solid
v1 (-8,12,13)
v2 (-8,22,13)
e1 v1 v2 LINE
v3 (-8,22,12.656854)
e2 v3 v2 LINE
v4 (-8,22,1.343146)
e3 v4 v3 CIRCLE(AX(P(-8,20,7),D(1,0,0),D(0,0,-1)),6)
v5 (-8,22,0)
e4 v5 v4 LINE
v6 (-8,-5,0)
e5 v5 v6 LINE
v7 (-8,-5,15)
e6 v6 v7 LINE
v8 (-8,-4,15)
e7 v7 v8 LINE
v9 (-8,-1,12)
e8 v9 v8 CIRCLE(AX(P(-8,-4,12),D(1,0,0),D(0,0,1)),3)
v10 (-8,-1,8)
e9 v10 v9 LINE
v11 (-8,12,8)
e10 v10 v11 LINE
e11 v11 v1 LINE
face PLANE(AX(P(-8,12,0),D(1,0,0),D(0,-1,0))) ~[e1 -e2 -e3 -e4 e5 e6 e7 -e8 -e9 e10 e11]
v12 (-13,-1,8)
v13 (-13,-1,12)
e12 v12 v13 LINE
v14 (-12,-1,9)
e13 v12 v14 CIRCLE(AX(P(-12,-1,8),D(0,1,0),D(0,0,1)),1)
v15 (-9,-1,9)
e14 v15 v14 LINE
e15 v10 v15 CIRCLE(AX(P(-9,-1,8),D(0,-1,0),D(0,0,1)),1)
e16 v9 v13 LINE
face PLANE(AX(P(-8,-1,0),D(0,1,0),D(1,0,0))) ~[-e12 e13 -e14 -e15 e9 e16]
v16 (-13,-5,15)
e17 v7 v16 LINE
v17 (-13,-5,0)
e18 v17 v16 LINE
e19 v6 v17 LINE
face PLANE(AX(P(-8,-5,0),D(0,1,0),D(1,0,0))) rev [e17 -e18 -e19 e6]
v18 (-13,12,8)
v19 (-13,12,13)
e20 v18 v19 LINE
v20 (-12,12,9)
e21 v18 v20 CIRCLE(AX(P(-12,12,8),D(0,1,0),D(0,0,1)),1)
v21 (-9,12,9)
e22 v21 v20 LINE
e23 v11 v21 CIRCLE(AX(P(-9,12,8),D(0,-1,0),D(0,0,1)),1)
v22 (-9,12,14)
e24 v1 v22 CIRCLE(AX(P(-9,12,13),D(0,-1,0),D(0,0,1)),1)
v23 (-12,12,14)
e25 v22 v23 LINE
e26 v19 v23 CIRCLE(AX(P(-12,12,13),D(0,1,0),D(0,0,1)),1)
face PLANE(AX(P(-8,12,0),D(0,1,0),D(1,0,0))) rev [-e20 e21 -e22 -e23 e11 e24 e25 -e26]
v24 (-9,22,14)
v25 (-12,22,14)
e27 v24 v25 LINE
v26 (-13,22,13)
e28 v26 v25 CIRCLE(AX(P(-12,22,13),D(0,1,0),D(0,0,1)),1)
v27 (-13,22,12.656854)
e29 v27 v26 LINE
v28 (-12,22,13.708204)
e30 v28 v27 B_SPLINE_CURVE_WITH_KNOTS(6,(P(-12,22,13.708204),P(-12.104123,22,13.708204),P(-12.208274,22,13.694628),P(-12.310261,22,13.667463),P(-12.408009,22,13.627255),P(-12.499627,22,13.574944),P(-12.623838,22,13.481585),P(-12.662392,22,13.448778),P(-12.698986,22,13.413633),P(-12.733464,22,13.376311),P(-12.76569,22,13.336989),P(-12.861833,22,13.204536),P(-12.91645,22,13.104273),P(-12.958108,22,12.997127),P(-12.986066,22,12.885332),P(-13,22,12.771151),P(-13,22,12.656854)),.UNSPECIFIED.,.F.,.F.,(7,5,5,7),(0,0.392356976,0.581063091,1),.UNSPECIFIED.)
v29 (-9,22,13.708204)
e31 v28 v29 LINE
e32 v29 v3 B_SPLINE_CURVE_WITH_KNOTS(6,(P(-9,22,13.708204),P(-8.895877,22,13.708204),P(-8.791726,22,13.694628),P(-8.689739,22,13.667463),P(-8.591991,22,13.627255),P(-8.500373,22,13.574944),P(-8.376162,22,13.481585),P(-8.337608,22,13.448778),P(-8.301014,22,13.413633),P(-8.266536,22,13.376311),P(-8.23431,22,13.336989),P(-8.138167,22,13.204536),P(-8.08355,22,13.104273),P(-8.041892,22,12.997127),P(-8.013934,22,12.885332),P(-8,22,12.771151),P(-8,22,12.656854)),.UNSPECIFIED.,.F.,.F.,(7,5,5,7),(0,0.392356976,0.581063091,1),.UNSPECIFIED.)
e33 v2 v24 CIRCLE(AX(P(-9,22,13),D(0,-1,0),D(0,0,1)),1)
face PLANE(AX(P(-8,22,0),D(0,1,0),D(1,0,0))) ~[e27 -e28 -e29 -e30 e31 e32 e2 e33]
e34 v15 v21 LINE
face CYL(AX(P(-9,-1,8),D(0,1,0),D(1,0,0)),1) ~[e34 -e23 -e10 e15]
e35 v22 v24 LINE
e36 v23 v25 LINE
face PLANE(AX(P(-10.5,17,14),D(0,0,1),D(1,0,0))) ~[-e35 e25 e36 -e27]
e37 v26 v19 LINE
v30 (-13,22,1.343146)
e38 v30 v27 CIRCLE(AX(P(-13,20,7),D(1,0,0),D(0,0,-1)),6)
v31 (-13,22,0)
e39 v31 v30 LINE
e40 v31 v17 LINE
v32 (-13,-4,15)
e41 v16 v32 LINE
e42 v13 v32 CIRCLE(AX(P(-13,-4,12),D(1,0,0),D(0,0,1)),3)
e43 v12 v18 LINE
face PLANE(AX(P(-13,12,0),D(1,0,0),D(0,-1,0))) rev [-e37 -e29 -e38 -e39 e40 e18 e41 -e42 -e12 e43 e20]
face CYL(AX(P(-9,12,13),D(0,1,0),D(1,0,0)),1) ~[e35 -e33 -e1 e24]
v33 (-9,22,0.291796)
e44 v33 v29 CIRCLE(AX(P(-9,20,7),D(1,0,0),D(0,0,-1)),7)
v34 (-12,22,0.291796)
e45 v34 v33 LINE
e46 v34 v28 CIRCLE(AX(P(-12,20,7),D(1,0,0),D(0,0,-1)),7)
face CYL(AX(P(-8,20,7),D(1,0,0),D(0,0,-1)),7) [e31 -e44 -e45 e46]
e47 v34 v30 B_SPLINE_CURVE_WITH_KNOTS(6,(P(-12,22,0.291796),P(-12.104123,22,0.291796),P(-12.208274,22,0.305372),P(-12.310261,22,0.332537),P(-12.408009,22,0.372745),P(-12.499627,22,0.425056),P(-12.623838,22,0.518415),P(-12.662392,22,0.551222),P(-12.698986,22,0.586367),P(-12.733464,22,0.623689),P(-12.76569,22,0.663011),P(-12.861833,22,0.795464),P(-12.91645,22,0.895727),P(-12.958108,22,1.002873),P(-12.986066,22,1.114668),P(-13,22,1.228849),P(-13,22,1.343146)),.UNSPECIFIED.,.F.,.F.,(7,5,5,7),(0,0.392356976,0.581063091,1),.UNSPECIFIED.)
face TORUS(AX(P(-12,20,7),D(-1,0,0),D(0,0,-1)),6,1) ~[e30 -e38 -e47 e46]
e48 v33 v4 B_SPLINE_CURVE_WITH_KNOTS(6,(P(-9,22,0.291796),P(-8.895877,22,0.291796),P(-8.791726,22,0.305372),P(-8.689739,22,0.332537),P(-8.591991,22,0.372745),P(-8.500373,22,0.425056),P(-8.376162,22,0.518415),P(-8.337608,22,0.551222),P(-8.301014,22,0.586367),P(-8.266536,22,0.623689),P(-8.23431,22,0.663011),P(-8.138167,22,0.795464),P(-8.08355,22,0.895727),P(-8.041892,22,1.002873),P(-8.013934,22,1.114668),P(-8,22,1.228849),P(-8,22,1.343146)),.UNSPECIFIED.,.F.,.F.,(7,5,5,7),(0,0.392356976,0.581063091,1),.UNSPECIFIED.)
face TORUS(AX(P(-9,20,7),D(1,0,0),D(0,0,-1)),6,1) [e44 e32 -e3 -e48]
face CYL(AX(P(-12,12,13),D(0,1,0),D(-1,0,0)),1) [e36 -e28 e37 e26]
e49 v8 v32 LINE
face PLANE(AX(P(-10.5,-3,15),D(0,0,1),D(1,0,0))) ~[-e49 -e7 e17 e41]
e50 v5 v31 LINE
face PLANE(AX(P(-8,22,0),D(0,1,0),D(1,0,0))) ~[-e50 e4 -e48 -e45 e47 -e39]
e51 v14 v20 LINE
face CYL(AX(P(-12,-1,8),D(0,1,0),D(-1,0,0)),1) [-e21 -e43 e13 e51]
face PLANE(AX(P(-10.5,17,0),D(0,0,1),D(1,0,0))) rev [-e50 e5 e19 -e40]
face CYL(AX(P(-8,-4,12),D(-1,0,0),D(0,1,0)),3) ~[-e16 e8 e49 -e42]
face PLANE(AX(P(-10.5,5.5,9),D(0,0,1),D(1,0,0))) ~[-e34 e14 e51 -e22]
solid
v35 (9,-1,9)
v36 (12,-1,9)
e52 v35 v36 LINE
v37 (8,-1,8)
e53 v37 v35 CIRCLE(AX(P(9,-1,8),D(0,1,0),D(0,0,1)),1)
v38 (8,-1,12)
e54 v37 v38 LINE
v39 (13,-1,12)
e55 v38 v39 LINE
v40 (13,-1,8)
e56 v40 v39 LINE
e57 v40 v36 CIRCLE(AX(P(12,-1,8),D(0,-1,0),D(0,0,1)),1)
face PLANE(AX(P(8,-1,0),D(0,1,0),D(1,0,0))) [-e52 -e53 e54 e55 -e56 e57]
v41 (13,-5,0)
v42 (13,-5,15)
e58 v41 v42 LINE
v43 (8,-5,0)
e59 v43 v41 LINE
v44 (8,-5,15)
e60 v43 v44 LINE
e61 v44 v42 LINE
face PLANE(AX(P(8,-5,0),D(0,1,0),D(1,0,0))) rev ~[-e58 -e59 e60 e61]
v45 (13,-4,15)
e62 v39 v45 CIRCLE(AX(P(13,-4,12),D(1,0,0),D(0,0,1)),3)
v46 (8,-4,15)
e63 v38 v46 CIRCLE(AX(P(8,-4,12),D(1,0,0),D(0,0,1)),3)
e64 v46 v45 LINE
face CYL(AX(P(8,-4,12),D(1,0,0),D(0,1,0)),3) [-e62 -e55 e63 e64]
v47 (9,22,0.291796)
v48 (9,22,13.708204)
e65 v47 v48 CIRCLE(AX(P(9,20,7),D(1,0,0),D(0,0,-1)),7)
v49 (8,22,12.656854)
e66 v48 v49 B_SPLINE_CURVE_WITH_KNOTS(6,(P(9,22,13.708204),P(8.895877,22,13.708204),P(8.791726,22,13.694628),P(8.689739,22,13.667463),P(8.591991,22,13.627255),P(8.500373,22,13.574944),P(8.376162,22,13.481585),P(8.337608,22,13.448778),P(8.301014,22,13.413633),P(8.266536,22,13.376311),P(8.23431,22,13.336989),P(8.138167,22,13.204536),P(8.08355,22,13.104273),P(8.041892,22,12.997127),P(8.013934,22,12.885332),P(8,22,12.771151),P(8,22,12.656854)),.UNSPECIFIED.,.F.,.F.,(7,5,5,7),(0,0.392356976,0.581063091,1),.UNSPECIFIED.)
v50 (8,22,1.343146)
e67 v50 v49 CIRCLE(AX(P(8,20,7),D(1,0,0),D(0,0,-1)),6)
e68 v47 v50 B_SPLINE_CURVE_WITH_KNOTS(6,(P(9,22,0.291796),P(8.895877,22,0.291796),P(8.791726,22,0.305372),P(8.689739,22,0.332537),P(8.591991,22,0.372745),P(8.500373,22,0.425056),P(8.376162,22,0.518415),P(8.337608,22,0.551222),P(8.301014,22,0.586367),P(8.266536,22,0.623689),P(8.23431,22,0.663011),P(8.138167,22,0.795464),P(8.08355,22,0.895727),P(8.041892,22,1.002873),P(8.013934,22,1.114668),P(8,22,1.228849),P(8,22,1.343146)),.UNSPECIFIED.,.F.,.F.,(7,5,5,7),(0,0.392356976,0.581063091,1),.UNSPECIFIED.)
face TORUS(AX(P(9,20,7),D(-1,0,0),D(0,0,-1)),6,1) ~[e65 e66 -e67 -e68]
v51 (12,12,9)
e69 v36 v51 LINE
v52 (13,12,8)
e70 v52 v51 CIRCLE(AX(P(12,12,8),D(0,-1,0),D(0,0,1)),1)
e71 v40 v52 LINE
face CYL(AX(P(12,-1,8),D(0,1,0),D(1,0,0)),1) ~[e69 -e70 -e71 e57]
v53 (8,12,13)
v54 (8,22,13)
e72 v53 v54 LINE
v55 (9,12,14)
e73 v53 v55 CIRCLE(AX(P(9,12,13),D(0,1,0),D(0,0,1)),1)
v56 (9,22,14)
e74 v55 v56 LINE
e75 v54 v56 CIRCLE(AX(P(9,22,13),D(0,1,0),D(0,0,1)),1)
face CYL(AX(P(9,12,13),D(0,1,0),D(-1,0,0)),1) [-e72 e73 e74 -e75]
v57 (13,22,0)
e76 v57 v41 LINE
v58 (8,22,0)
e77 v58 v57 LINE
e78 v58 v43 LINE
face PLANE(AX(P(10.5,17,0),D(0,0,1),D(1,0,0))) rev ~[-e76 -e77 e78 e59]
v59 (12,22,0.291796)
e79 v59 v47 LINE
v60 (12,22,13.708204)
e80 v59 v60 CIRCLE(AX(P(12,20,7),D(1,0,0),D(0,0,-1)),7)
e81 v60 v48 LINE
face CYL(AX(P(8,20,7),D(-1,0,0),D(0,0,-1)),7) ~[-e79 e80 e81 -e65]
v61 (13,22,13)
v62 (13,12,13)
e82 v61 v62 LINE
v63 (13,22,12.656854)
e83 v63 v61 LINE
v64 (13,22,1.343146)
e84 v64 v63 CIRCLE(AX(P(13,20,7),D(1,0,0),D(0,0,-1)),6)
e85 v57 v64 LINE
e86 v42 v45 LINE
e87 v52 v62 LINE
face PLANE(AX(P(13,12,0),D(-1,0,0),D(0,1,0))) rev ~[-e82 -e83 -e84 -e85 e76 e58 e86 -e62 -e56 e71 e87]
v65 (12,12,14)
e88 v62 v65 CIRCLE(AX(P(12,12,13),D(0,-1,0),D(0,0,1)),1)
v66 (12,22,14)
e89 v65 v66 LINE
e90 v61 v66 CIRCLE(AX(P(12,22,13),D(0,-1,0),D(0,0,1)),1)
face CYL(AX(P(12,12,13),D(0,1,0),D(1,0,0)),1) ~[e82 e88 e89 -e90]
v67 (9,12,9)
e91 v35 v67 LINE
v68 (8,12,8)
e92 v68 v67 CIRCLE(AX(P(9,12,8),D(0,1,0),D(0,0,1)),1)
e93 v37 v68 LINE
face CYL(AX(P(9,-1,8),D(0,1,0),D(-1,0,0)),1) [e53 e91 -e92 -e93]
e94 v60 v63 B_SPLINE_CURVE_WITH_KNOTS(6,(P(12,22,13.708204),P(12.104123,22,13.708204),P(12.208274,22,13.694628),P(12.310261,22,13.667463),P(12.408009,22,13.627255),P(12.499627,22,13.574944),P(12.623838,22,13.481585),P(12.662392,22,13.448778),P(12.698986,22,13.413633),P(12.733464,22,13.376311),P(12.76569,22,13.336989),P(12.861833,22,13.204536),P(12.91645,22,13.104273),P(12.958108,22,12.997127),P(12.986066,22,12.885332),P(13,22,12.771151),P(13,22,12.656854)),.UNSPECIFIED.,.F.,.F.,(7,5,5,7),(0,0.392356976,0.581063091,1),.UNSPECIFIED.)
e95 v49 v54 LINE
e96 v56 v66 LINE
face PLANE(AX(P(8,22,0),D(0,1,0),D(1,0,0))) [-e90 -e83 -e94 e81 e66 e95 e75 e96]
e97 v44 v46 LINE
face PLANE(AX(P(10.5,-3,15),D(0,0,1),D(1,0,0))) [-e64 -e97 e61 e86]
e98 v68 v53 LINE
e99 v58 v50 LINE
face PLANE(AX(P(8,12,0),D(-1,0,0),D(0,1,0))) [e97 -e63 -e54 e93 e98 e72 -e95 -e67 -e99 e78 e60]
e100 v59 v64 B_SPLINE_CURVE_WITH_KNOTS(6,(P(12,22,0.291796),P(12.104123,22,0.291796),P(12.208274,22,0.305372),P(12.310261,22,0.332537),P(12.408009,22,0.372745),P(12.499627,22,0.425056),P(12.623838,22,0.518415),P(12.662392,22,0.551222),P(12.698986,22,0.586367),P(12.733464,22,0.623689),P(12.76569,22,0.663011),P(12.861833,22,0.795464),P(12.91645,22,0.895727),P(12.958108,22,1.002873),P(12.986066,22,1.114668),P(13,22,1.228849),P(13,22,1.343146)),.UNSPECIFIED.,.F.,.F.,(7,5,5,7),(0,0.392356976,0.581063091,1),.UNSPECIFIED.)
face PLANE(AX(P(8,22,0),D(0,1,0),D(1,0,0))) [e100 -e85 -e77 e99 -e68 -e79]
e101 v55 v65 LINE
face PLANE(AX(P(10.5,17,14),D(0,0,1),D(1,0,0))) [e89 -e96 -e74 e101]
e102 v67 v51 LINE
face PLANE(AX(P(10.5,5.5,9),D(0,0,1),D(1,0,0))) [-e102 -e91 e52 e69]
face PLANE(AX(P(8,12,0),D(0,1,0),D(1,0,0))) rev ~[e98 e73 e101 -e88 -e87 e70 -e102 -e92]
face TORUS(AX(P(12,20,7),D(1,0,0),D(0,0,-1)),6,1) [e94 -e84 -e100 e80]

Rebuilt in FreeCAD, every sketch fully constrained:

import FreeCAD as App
import Part
import Sketcher
from FreeCAD import Vector


def edges_at(feature, points):
    """Names of the edges that pass closest to the given points."""
    edges = feature.Shape.Edges
    near = lambda p: min(range(len(edges)), key=lambda i: edges[i].distToShape(Part.Vertex(*p))[0])
    return sorted({f"Edge{near(p) + 1}" for p in points})

doc = App.newDocument("Part")
body = doc.addObject("PartDesign::Body", "Body")

sketch1 = body.newObject("Sketcher::SketchObject", "Sketch")
sketch1.AttachmentSupport = (doc.getObject("XY_Plane"), [""])
sketch1.MapMode = "FlatFace"
sketch1.addGeometry(Part.LineSegment(Vector(8, 12, 0), Vector(8, -1, 0)), False)
sketch1.addGeometry(Part.LineSegment(Vector(8, -1, 0), Vector(13, -1, 0)), False)
sketch1.addGeometry(Part.LineSegment(Vector(13, -1, 0), Vector(13, 12, 0)), False)
sketch1.addGeometry(Part.LineSegment(Vector(13, 12, 0), Vector(8, 12, 0)), False)
sketch1.addConstraint(Sketcher.Constraint("Coincident", 0, 2, 1, 1))
sketch1.addConstraint(Sketcher.Constraint("Coincident", 1, 2, 2, 1))
sketch1.addConstraint(Sketcher.Constraint("Coincident", 2, 2, 3, 1))
sketch1.addConstraint(Sketcher.Constraint("Coincident", 3, 2, 0, 1))
sketch1.addConstraint(Sketcher.Constraint("Vertical", 0))
sketch1.addConstraint(Sketcher.Constraint("Horizontal", 1))
sketch1.addConstraint(Sketcher.Constraint("Vertical", 2))
sketch1.addConstraint(Sketcher.Constraint("Horizontal", 3))
sketch1.addConstraint(Sketcher.Constraint("DistanceX", 1, 1, 1, 2, 5.0))
sketch1.addConstraint(Sketcher.Constraint("DistanceY", 0, 2, 0, 1, 13.0))
sketch1.addConstraint(Sketcher.Constraint("DistanceX", -1, 1, 0, 2, 8.0))
sketch1.addConstraint(Sketcher.Constraint("DistanceY", 0, 2, -1, 1, 1.0))
pad1 = body.newObject("PartDesign::Pad", "Pad")
pad1.Profile = sketch1
pad1.Length = 9
doc.recompute()

fillet = body.newObject("PartDesign::Fillet", "Fillet")
fillet.Base = (pad1, edges_at(pad1, [(8, 5.5, 9), (13, 5.5, 9)]))
fillet.Radius = 1
body2 = doc.addObject("PartDesign::Body", "Body001")

sketch2 = body2.newObject("Sketcher::SketchObject", "Sketch001")
sketch2.AttachmentSupport = (doc.getObject("YZ_Plane001"), [""])
sketch2.MapMode = "FlatFace"
sketch2.AttachmentOffset = App.Placement(Vector(0, 0, 8), App.Rotation())
sketch2.addGeometry(Part.Circle(Vector(20, 7, 0), Vector(0, 0, 1), 7), False)
sketch2.addConstraint(Sketcher.Constraint("Diameter", 0, 14.0))
sketch2.addConstraint(Sketcher.Constraint("DistanceX", -1, 1, 0, 3, 20.0))
sketch2.addConstraint(Sketcher.Constraint("DistanceY", -1, 1, 0, 3, 7.0))
pad2 = body2.newObject("PartDesign::Pad", "Pad001")
pad2.Profile = sketch2
pad2.Length = 5
doc.recompute()

fillet2 = body2.newObject("PartDesign::Fillet", "Fillet001")
fillet2.Base = (pad2, edges_at(pad2, [(13, 20, 14), (8, 20, 14)]))
fillet2.Radius = 1
body3 = doc.addObject("PartDesign::Body", "Body002")

sketch3 = body3.newObject("Sketcher::SketchObject", "Sketch002")
sketch3.AttachmentSupport = (doc.getObject("XY_Plane002"), [""])
sketch3.MapMode = "FlatFace"
sketch3.addGeometry(Part.LineSegment(Vector(8, 22, 0), Vector(8, 12, 0)), False)
sketch3.addGeometry(Part.LineSegment(Vector(8, 12, 0), Vector(13, 12, 0)), False)
sketch3.addGeometry(Part.LineSegment(Vector(13, 12, 0), Vector(13, 22, 0)), False)
sketch3.addGeometry(Part.LineSegment(Vector(13, 22, 0), Vector(8, 22, 0)), False)
sketch3.addConstraint(Sketcher.Constraint("Coincident", 0, 2, 1, 1))
sketch3.addConstraint(Sketcher.Constraint("Coincident", 1, 2, 2, 1))
sketch3.addConstraint(Sketcher.Constraint("Coincident", 2, 2, 3, 1))
sketch3.addConstraint(Sketcher.Constraint("Coincident", 3, 2, 0, 1))
sketch3.addConstraint(Sketcher.Constraint("Vertical", 0))
sketch3.addConstraint(Sketcher.Constraint("Horizontal", 1))
sketch3.addConstraint(Sketcher.Constraint("Vertical", 2))
sketch3.addConstraint(Sketcher.Constraint("Horizontal", 3))
sketch3.addConstraint(Sketcher.Constraint("DistanceX", 1, 1, 1, 2, 5.0))
sketch3.addConstraint(Sketcher.Constraint("DistanceY", 0, 2, 0, 1, 10.0))
sketch3.addConstraint(Sketcher.Constraint("DistanceX", -1, 1, 0, 2, 8.0))
sketch3.addConstraint(Sketcher.Constraint("DistanceY", -1, 1, 0, 2, 12.0))
pad3 = body3.newObject("PartDesign::Pad", "Pad002")
pad3.Profile = sketch3
pad3.Length = 14
doc.recompute()

fillet3 = body3.newObject("PartDesign::Fillet", "Fillet002")
fillet3.Base = (pad3, edges_at(pad3, [(8, 17, 14), (13, 17, 14)]))
fillet3.Radius = 1
body4 = doc.addObject("PartDesign::Body", "Body003")
body4.AllowCompound = True

sketch4 = body4.newObject("Sketcher::SketchObject", "Sketch003")
sketch4.AttachmentSupport = (doc.getObject("XY_Plane003"), [""])
sketch4.MapMode = "FlatFace"
sketch4.addGeometry(Part.LineSegment(Vector(8, -1, 0), Vector(8, -5, 0)), False)
sketch4.addGeometry(Part.LineSegment(Vector(8, -5, 0), Vector(13, -5, 0)), False)
sketch4.addGeometry(Part.LineSegment(Vector(13, -5, 0), Vector(13, -1, 0)), False)
sketch4.addGeometry(Part.LineSegment(Vector(13, -1, 0), Vector(8, -1, 0)), False)
sketch4.addConstraint(Sketcher.Constraint("Coincident", 0, 2, 1, 1))
sketch4.addConstraint(Sketcher.Constraint("Coincident", 1, 2, 2, 1))
sketch4.addConstraint(Sketcher.Constraint("Coincident", 2, 2, 3, 1))
sketch4.addConstraint(Sketcher.Constraint("Coincident", 3, 2, 0, 1))
sketch4.addConstraint(Sketcher.Constraint("Vertical", 0))
sketch4.addConstraint(Sketcher.Constraint("Horizontal", 1))
sketch4.addConstraint(Sketcher.Constraint("Vertical", 2))
sketch4.addConstraint(Sketcher.Constraint("Horizontal", 3))
sketch4.addConstraint(Sketcher.Constraint("DistanceX", 1, 1, 1, 2, 5.0))
sketch4.addConstraint(Sketcher.Constraint("DistanceY", 0, 2, 0, 1, 4.0))
sketch4.addConstraint(Sketcher.Constraint("DistanceX", -1, 1, 0, 2, 8.0))
sketch4.addConstraint(Sketcher.Constraint("DistanceY", 0, 2, -1, 1, 5.0))
pad4 = body4.newObject("PartDesign::Pad", "Pad003")
pad4.Profile = sketch4
pad4.Length = 15
doc.recompute()

fillet4 = body4.newObject("PartDesign::Fillet", "Fillet003")
fillet4.Base = (pad4, edges_at(pad4, [(10.5, -1, 15)]))
fillet4.Radius = 3
doc.recompute()

boolean = body4.newObject("PartDesign::Boolean", "Boolean")
boolean.Type = "Fuse"
boolean.addObjects([body])
doc.recompute()

boolean2 = body4.newObject("PartDesign::Boolean", "Boolean001")
boolean2.Type = "Fuse"
boolean2.addObjects([body2])
doc.recompute()

boolean3 = body4.newObject("PartDesign::Boolean", "Boolean002")
boolean3.Type = "Fuse"
boolean3.addObjects([body3])
body5 = doc.addObject("PartDesign::Body", "Body004")
body5.AllowCompound = True
doc.recompute()

mirroring = doc.addObject("Part::Mirroring", "Mirroring")
mirroring.Source = body4
mirroring.Base = Vector(0, 0, 0)
mirroring.Normal = Vector(1, 0, 0)
body5.BaseFeature = mirroring
doc.recompute()

boolean4 = body5.newObject("PartDesign::Boolean", "Boolean003")
boolean4.Type = "Fuse"
boolean4.addObjects([body4])
mirroring.Visibility = False

doc.recompute()
